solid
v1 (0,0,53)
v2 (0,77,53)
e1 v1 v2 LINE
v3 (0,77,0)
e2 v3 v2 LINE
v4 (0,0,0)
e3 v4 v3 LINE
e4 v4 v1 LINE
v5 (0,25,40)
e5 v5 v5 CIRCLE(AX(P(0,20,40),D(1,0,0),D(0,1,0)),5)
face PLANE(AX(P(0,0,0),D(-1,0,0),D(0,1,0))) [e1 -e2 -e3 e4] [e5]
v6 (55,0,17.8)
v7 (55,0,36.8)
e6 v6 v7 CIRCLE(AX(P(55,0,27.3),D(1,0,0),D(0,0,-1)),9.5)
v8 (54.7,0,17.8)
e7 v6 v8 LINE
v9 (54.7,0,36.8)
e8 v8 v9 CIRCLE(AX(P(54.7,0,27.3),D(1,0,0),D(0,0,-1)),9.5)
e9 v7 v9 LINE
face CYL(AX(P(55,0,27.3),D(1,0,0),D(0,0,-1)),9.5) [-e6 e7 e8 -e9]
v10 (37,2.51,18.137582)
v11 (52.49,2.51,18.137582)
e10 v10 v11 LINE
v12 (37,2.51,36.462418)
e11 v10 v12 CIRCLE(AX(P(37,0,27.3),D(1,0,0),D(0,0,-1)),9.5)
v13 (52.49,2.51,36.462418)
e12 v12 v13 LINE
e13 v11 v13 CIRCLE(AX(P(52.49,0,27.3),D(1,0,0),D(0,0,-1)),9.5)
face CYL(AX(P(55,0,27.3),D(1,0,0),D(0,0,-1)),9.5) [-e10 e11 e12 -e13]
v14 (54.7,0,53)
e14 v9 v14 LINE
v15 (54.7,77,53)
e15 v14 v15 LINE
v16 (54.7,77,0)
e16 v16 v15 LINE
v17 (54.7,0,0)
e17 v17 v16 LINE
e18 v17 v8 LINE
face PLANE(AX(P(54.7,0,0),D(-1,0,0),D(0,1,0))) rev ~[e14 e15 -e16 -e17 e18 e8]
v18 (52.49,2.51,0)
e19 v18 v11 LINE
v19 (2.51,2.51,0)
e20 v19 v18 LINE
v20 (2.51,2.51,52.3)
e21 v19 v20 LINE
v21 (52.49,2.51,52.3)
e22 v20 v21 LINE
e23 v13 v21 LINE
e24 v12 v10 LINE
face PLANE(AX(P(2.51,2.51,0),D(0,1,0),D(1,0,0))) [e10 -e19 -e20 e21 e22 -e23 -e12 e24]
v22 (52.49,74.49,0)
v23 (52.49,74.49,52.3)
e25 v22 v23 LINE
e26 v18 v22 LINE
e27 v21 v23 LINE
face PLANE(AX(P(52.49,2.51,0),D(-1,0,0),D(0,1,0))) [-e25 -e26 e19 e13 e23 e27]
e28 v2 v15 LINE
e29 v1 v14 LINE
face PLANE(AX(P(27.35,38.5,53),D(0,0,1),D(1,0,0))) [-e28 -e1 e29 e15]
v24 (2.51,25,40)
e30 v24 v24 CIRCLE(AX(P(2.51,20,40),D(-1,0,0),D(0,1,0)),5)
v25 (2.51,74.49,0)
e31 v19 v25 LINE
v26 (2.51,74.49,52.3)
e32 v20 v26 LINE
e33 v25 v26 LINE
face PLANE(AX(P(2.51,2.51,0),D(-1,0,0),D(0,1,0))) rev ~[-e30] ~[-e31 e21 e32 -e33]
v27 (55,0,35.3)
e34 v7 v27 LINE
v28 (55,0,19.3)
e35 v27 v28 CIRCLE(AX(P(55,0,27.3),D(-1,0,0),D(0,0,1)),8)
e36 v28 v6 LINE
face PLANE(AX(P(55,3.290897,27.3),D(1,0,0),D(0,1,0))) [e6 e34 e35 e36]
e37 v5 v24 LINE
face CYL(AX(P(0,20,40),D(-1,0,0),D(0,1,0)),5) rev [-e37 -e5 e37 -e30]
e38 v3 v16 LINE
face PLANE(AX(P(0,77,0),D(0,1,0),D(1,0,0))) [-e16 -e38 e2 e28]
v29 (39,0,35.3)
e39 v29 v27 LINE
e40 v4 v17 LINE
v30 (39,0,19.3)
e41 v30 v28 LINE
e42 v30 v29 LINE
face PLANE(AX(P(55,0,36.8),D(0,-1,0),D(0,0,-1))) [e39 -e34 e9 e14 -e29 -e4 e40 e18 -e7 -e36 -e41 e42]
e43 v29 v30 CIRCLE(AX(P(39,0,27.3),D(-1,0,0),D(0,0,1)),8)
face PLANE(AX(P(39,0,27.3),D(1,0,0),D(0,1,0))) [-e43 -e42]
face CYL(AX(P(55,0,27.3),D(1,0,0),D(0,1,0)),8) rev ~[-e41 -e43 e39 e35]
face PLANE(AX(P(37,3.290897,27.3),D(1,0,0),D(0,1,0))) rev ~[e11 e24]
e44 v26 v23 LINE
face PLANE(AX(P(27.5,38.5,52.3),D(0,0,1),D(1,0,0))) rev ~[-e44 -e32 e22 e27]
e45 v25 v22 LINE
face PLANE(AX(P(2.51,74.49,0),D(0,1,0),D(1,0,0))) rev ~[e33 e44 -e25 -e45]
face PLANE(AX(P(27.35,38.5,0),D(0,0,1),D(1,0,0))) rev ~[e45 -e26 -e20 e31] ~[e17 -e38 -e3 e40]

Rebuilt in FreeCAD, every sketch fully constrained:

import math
import FreeCAD as App
import Part
import Sketcher
Q = App.Units.Quantity


def add_polygon(sketch, points):
    """Adds a closed chain of lines whose ends are joined by coincident constraints."""
    first, n = sketch.GeometryCount, len(points)
    for a, b in zip(points, points[1:] + points[:1]):
        sketch.addGeometry(Part.LineSegment(App.Vector(*a, 0), App.Vector(*b, 0)), False)
    for i in range(n):
        sketch.addConstraint(Sketcher.Constraint("Coincident", first + i, 2, first + (i + 1) % n, 1))

doc = App.newDocument("Part")
body = doc.addObject("PartDesign::Body", "Body")

# Sketch on XY plane
sketch1 = body.newObject("Sketcher::SketchObject", "Sketch")
sketch1.AttachmentSupport = (doc.getObject("XY_Plane"), [""])
sketch1.MapMode = "FlatFace"
add_polygon(sketch1, [(0, 77), (0, 0), (54.7, 0), (54.7, 77)])  # lines 0-3
sketch1.addConstraint([
    Sketcher.Constraint("Vertical", 0),
    Sketcher.Constraint("Horizontal", 1),
    Sketcher.Constraint("Vertical", 2),
    Sketcher.Constraint("Horizontal", 3),
    Sketcher.Constraint("Coincident", 0, 2, -1, 1),
    Sketcher.Constraint("DistanceY", 0, 2, 0, 1, Q("77 mm")),
    Sketcher.Constraint("DistanceX", 1, 1, 1, 2, Q("54.7 mm")),
])
pad1 = body.newObject("PartDesign::Pad", "Pad")
pad1.Profile = sketch1
pad1.Length = 53

# Sketch on XY plane
sketch2 = body.newObject("Sketcher::SketchObject", "Sketch001")
sketch2.AttachmentSupport = (doc.getObject("XY_Plane"), [""])
sketch2.MapMode = "FlatFace"
add_polygon(sketch2, [(2.51, 74.49), (2.51, 2.51), (52.49, 2.51), (52.49, 74.49)])  # lines 0-3
sketch2.addConstraint([
    Sketcher.Constraint("Vertical", 0),
    Sketcher.Constraint("Horizontal", 1),
    Sketcher.Constraint("Vertical", 2),
    Sketcher.Constraint("Horizontal", 3),
    Sketcher.Constraint("DistanceX", 1, 1, 1, 2, Q("49.98 mm")),
    Sketcher.Constraint("DistanceY", 0, 2, 0, 1, Q("71.98 mm")),
    Sketcher.Constraint("DistanceX", -1, 1, 0, 2, Q("2.51 mm")),
    Sketcher.Constraint("DistanceY", -1, 1, 0, 2, Q("2.51 mm")),
])
pocket1 = body.newObject("PartDesign::Pocket", "Pocket")
pocket1.Profile = sketch2
pocket1.Length = 52.3
pocket1.Reversed = True

# Sketch on YZ plane
sketch3 = body.newObject("Sketcher::SketchObject", "Sketch002")
sketch3.AttachmentSupport = (doc.getObject("YZ_Plane"), [""])
sketch3.MapMode = "FlatFace"
sketch3.addGeometry(Part.Circle(App.Vector(20, 40, 0), App.Vector(0, 0, 1), 5), False)
sketch3.addConstraint([
    Sketcher.Constraint("Diameter", 0, Q("10 mm")),
    Sketcher.Constraint("DistanceX", -1, 1, 0, 3, Q("20 mm")),
    Sketcher.Constraint("DistanceY", -1, 1, 0, 3, Q("40 mm")),
])
pocket2 = body.newObject("PartDesign::Pocket", "Pocket001")
pocket2.Profile = sketch3
pocket2.Length = 5
pocket2.Reversed = True

# Sketch on YZ plane
sketch4 = body.newObject("Sketcher::SketchObject", "Sketch003")
sketch4.AttachmentSupport = (doc.getObject("YZ_Plane"), [""])
sketch4.MapMode = "FlatFace"
sketch4.AttachmentOffset = App.Placement(App.Vector(0, 0, 55), App.Rotation())
sketch4.addGeometry([
    Part.ArcOfCircle(Part.Circle(App.Vector(0, 27.3, 0), App.Vector(0, 0, 1), 9.5), math.radians(-90), math.radians(90)),
    Part.LineSegment(App.Vector(0, 36.8, 0), App.Vector(0, 17.8, 0)),
], False)
sketch4.addConstraint([
    Sketcher.Constraint("Coincident", 0, 1, 1, 2),
    Sketcher.Constraint("Coincident", 1, 1, 0, 2),
    Sketcher.Constraint("Vertical", 1),
    Sketcher.Constraint("PointOnObject", 0, 3, -2),
    Sketcher.Constraint("PointOnObject", 0, 1, -2),
    Sketcher.Constraint("Radius", 0, Q("9.5 mm")),
    Sketcher.Constraint("DistanceY", -1, 1, 0, 3, Q("27.3 mm")),
])
pad2 = body.newObject("PartDesign::Pad", "Pad001")
pad2.Profile = sketch4
pad2.Length = 18
pad2.Reversed = True

# Sketch on YZ plane
sketch5 = body.newObject("Sketcher::SketchObject", "Sketch004")
sketch5.AttachmentSupport = (doc.getObject("YZ_Plane"), [""])
sketch5.MapMode = "FlatFace"
sketch5.AttachmentOffset = App.Placement(App.Vector(0, 0, 55), App.Rotation())
sketch5.addGeometry(Part.Circle(App.Vector(0, 27.3, 0), App.Vector(0, 0, 1), 8), False)
sketch5.addConstraint([
    Sketcher.Constraint("PointOnObject", 0, 3, -2),
    Sketcher.Constraint("Diameter", 0, Q("16 mm")),
    Sketcher.Constraint("DistanceY", -1, 1, 0, 3, Q("27.3 mm")),
])
pocket3 = body.newObject("PartDesign::Pocket", "Pocket002")
pocket3.Profile = sketch5
pocket3.Length = 32
pocket3.Midplane = True

doc.recompute()
